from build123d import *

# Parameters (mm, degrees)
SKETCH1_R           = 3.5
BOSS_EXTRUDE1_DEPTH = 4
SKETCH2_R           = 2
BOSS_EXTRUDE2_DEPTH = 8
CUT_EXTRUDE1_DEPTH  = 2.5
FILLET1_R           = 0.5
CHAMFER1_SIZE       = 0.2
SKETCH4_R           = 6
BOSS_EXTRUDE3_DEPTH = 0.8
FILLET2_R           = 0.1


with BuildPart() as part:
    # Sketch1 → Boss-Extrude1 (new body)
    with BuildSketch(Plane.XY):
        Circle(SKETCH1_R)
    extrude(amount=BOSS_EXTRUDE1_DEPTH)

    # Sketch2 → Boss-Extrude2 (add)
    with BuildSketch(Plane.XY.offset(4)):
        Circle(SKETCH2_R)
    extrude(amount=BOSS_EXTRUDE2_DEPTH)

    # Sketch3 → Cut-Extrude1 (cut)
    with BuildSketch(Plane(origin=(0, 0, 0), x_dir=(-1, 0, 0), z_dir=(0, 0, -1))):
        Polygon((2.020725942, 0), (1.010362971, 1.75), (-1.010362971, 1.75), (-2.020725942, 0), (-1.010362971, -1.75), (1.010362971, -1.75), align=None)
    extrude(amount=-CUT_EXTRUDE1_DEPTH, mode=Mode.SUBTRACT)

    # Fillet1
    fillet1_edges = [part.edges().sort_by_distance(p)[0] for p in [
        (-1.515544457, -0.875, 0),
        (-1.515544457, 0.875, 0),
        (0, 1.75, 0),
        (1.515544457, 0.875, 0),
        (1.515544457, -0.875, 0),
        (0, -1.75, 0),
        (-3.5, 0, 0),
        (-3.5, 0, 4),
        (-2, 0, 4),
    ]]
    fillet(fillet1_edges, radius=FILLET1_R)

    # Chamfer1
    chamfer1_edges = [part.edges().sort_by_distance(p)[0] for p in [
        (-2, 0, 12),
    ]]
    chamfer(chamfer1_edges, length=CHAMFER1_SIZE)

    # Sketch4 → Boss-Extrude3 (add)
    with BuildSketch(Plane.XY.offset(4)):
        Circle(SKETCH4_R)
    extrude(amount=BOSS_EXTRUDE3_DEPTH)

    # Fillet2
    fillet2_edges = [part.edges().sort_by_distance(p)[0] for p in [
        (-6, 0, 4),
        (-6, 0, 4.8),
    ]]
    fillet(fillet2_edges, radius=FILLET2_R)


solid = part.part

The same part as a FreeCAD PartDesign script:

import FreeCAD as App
import Part
import Sketcher
Q = App.Units.Quantity


def edges_at(feature, points):
    """Names of the edges that pass closest to the given points."""
    edges = feature.Shape.Edges
    near = lambda p: min(range(len(edges)), key=lambda i: edges[i].distToShape(Part.Vertex(*p))[0])
    return sorted({f"Edge{near(p) + 1}" for p in points})


def add_polygon(sketch, points):
    """Adds a closed chain of lines whose ends are joined by coincident constraints."""
    first, n = sketch.GeometryCount, len(points)
    for a, b in zip(points, points[1:] + points[:1]):
        sketch.addGeometry(Part.LineSegment(App.Vector(*a, 0), App.Vector(*b, 0)), False)
    for i in range(n):
        sketch.addConstraint(Sketcher.Constraint("Coincident", first + i, 2, first + (i + 1) % n, 1))

doc = App.newDocument("Part")
body = doc.addObject("PartDesign::Body", "Body")

sketch1 = body.newObject("Sketcher::SketchObject", "Sketch")
sketch1.AttachmentSupport = (doc.getObject("XY_Plane"), [""])
sketch1.MapMode = "FlatFace"
sketch1.addGeometry(Part.Circle(App.Vector(0, 0, 0), App.Vector(0, 0, 1), 3.5), False)
sketch1.addConstraint([
    Sketcher.Constraint("Coincident", 0, 3, -1, 1),
    Sketcher.Constraint("Diameter", 0, Q("7 mm")),
])
pad1 = body.newObject("PartDesign::Pad", "Pad")
pad1.Profile = sketch1
pad1.Length = 4

sketch2 = body.newObject("Sketcher::SketchObject", "Sketch001")
sketch2.AttachmentSupport = (doc.getObject("XY_Plane"), [""])
sketch2.MapMode = "FlatFace"
sketch2.AttachmentOffset = App.Placement(App.Vector(0, 0, 4), App.Rotation())
sketch2.addGeometry(Part.Circle(App.Vector(0, 0, 0), App.Vector(0, 0, 1), 2), False)
sketch2.addConstraint([
    Sketcher.Constraint("Coincident", 0, 3, -1, 1),
    Sketcher.Constraint("Diameter", 0, Q("4 mm")),
])
pad2 = body.newObject("PartDesign::Pad", "Pad001")
pad2.Profile = sketch2
pad2.Length = 8

sketch3 = body.newObject("Sketcher::SketchObject", "Sketch002")
sketch3.AttachmentSupport = (doc.getObject("XY_Plane"), [""])
sketch3.MapMode = "FlatFace"
add_polygon(sketch3, [(-2, 0), (-1, 1.8), (1, 1.8), (2, 0), (1, -1.8), (-1, -1.8)])
sketch3.addConstraint([
    Sketcher.Constraint("Horizontal", 1),
    Sketcher.Constraint("Horizontal", 4),
    Sketcher.Constraint("Symmetric", 0, 2, 3, 2, -1, 1),
    Sketcher.Constraint("Symmetric", 2, 2, 5, 2, -1, 1),
    Sketcher.Constraint("PointOnObject", 2, 2, -1),
    Sketcher.Constraint("Parallel", 2, 5),
    Sketcher.Constraint("Vertical", 1, 2, 3, 2),
    Sketcher.Constraint("Angle", 0, Q("60 deg")),
    Sketcher.Constraint("DistanceY", 3, 2, 1, 2, Q("3.5 mm")),
    Sketcher.Constraint("DistanceX", 1, 1, 1, 2, Q("2.020726 mm")),
])
pocket1 = body.newObject("PartDesign::Pocket", "Pocket")
pocket1.Profile = sketch3
pocket1.Length = 2.5
pocket1.Reversed = True
doc.recompute()

fillet = body.newObject("PartDesign::Fillet", "Fillet")
fillet.Base = (pocket1, edges_at(pocket1, [
    (-1.516, -0.875, 0),
    (-1.516, 0.875, 0),
    (0, 1.75, 0),
    (1.516, 0.875, 0),
    (1.516, -0.875, 0),
    (0, -1.75, 0),
    (-3.5, 0, 0),
    (-3.5, 0, 4),
    (-2, 0, 4),
]))
fillet.Radius = 0.5
doc.recompute()

chamfer = body.newObject("PartDesign::Chamfer", "Chamfer")
chamfer.Base = (fillet, edges_at(fillet, [(-2, 0, 12)]))
chamfer.Size = 0.2

sketch4 = body.newObject("Sketcher::SketchObject", "Sketch003")
sketch4.AttachmentSupport = (doc.getObject("XY_Plane"), [""])
sketch4.MapMode = "FlatFace"
sketch4.AttachmentOffset = App.Placement(App.Vector(0, 0, 4), App.Rotation())
sketch4.addGeometry(Part.Circle(App.Vector(0, 0, 0), App.Vector(0, 0, 1), 6), False)
sketch4.addConstraint([
    Sketcher.Constraint("Coincident", 0, 3, -1, 1),
    Sketcher.Constraint("Diameter", 0, Q("12 mm")),
])
pad3 = body.newObject("PartDesign::Pad", "Pad002")
pad3.Profile = sketch4
pad3.Length = 0.8
doc.recompute()

fillet2 = body.newObject("PartDesign::Fillet", "Fillet001")
fillet2.Base = (pad3, edges_at(pad3, [(-6, 0, 4), (-6, 0, 4.8)]))
fillet2.Radius = 0.1

doc.recompute()
